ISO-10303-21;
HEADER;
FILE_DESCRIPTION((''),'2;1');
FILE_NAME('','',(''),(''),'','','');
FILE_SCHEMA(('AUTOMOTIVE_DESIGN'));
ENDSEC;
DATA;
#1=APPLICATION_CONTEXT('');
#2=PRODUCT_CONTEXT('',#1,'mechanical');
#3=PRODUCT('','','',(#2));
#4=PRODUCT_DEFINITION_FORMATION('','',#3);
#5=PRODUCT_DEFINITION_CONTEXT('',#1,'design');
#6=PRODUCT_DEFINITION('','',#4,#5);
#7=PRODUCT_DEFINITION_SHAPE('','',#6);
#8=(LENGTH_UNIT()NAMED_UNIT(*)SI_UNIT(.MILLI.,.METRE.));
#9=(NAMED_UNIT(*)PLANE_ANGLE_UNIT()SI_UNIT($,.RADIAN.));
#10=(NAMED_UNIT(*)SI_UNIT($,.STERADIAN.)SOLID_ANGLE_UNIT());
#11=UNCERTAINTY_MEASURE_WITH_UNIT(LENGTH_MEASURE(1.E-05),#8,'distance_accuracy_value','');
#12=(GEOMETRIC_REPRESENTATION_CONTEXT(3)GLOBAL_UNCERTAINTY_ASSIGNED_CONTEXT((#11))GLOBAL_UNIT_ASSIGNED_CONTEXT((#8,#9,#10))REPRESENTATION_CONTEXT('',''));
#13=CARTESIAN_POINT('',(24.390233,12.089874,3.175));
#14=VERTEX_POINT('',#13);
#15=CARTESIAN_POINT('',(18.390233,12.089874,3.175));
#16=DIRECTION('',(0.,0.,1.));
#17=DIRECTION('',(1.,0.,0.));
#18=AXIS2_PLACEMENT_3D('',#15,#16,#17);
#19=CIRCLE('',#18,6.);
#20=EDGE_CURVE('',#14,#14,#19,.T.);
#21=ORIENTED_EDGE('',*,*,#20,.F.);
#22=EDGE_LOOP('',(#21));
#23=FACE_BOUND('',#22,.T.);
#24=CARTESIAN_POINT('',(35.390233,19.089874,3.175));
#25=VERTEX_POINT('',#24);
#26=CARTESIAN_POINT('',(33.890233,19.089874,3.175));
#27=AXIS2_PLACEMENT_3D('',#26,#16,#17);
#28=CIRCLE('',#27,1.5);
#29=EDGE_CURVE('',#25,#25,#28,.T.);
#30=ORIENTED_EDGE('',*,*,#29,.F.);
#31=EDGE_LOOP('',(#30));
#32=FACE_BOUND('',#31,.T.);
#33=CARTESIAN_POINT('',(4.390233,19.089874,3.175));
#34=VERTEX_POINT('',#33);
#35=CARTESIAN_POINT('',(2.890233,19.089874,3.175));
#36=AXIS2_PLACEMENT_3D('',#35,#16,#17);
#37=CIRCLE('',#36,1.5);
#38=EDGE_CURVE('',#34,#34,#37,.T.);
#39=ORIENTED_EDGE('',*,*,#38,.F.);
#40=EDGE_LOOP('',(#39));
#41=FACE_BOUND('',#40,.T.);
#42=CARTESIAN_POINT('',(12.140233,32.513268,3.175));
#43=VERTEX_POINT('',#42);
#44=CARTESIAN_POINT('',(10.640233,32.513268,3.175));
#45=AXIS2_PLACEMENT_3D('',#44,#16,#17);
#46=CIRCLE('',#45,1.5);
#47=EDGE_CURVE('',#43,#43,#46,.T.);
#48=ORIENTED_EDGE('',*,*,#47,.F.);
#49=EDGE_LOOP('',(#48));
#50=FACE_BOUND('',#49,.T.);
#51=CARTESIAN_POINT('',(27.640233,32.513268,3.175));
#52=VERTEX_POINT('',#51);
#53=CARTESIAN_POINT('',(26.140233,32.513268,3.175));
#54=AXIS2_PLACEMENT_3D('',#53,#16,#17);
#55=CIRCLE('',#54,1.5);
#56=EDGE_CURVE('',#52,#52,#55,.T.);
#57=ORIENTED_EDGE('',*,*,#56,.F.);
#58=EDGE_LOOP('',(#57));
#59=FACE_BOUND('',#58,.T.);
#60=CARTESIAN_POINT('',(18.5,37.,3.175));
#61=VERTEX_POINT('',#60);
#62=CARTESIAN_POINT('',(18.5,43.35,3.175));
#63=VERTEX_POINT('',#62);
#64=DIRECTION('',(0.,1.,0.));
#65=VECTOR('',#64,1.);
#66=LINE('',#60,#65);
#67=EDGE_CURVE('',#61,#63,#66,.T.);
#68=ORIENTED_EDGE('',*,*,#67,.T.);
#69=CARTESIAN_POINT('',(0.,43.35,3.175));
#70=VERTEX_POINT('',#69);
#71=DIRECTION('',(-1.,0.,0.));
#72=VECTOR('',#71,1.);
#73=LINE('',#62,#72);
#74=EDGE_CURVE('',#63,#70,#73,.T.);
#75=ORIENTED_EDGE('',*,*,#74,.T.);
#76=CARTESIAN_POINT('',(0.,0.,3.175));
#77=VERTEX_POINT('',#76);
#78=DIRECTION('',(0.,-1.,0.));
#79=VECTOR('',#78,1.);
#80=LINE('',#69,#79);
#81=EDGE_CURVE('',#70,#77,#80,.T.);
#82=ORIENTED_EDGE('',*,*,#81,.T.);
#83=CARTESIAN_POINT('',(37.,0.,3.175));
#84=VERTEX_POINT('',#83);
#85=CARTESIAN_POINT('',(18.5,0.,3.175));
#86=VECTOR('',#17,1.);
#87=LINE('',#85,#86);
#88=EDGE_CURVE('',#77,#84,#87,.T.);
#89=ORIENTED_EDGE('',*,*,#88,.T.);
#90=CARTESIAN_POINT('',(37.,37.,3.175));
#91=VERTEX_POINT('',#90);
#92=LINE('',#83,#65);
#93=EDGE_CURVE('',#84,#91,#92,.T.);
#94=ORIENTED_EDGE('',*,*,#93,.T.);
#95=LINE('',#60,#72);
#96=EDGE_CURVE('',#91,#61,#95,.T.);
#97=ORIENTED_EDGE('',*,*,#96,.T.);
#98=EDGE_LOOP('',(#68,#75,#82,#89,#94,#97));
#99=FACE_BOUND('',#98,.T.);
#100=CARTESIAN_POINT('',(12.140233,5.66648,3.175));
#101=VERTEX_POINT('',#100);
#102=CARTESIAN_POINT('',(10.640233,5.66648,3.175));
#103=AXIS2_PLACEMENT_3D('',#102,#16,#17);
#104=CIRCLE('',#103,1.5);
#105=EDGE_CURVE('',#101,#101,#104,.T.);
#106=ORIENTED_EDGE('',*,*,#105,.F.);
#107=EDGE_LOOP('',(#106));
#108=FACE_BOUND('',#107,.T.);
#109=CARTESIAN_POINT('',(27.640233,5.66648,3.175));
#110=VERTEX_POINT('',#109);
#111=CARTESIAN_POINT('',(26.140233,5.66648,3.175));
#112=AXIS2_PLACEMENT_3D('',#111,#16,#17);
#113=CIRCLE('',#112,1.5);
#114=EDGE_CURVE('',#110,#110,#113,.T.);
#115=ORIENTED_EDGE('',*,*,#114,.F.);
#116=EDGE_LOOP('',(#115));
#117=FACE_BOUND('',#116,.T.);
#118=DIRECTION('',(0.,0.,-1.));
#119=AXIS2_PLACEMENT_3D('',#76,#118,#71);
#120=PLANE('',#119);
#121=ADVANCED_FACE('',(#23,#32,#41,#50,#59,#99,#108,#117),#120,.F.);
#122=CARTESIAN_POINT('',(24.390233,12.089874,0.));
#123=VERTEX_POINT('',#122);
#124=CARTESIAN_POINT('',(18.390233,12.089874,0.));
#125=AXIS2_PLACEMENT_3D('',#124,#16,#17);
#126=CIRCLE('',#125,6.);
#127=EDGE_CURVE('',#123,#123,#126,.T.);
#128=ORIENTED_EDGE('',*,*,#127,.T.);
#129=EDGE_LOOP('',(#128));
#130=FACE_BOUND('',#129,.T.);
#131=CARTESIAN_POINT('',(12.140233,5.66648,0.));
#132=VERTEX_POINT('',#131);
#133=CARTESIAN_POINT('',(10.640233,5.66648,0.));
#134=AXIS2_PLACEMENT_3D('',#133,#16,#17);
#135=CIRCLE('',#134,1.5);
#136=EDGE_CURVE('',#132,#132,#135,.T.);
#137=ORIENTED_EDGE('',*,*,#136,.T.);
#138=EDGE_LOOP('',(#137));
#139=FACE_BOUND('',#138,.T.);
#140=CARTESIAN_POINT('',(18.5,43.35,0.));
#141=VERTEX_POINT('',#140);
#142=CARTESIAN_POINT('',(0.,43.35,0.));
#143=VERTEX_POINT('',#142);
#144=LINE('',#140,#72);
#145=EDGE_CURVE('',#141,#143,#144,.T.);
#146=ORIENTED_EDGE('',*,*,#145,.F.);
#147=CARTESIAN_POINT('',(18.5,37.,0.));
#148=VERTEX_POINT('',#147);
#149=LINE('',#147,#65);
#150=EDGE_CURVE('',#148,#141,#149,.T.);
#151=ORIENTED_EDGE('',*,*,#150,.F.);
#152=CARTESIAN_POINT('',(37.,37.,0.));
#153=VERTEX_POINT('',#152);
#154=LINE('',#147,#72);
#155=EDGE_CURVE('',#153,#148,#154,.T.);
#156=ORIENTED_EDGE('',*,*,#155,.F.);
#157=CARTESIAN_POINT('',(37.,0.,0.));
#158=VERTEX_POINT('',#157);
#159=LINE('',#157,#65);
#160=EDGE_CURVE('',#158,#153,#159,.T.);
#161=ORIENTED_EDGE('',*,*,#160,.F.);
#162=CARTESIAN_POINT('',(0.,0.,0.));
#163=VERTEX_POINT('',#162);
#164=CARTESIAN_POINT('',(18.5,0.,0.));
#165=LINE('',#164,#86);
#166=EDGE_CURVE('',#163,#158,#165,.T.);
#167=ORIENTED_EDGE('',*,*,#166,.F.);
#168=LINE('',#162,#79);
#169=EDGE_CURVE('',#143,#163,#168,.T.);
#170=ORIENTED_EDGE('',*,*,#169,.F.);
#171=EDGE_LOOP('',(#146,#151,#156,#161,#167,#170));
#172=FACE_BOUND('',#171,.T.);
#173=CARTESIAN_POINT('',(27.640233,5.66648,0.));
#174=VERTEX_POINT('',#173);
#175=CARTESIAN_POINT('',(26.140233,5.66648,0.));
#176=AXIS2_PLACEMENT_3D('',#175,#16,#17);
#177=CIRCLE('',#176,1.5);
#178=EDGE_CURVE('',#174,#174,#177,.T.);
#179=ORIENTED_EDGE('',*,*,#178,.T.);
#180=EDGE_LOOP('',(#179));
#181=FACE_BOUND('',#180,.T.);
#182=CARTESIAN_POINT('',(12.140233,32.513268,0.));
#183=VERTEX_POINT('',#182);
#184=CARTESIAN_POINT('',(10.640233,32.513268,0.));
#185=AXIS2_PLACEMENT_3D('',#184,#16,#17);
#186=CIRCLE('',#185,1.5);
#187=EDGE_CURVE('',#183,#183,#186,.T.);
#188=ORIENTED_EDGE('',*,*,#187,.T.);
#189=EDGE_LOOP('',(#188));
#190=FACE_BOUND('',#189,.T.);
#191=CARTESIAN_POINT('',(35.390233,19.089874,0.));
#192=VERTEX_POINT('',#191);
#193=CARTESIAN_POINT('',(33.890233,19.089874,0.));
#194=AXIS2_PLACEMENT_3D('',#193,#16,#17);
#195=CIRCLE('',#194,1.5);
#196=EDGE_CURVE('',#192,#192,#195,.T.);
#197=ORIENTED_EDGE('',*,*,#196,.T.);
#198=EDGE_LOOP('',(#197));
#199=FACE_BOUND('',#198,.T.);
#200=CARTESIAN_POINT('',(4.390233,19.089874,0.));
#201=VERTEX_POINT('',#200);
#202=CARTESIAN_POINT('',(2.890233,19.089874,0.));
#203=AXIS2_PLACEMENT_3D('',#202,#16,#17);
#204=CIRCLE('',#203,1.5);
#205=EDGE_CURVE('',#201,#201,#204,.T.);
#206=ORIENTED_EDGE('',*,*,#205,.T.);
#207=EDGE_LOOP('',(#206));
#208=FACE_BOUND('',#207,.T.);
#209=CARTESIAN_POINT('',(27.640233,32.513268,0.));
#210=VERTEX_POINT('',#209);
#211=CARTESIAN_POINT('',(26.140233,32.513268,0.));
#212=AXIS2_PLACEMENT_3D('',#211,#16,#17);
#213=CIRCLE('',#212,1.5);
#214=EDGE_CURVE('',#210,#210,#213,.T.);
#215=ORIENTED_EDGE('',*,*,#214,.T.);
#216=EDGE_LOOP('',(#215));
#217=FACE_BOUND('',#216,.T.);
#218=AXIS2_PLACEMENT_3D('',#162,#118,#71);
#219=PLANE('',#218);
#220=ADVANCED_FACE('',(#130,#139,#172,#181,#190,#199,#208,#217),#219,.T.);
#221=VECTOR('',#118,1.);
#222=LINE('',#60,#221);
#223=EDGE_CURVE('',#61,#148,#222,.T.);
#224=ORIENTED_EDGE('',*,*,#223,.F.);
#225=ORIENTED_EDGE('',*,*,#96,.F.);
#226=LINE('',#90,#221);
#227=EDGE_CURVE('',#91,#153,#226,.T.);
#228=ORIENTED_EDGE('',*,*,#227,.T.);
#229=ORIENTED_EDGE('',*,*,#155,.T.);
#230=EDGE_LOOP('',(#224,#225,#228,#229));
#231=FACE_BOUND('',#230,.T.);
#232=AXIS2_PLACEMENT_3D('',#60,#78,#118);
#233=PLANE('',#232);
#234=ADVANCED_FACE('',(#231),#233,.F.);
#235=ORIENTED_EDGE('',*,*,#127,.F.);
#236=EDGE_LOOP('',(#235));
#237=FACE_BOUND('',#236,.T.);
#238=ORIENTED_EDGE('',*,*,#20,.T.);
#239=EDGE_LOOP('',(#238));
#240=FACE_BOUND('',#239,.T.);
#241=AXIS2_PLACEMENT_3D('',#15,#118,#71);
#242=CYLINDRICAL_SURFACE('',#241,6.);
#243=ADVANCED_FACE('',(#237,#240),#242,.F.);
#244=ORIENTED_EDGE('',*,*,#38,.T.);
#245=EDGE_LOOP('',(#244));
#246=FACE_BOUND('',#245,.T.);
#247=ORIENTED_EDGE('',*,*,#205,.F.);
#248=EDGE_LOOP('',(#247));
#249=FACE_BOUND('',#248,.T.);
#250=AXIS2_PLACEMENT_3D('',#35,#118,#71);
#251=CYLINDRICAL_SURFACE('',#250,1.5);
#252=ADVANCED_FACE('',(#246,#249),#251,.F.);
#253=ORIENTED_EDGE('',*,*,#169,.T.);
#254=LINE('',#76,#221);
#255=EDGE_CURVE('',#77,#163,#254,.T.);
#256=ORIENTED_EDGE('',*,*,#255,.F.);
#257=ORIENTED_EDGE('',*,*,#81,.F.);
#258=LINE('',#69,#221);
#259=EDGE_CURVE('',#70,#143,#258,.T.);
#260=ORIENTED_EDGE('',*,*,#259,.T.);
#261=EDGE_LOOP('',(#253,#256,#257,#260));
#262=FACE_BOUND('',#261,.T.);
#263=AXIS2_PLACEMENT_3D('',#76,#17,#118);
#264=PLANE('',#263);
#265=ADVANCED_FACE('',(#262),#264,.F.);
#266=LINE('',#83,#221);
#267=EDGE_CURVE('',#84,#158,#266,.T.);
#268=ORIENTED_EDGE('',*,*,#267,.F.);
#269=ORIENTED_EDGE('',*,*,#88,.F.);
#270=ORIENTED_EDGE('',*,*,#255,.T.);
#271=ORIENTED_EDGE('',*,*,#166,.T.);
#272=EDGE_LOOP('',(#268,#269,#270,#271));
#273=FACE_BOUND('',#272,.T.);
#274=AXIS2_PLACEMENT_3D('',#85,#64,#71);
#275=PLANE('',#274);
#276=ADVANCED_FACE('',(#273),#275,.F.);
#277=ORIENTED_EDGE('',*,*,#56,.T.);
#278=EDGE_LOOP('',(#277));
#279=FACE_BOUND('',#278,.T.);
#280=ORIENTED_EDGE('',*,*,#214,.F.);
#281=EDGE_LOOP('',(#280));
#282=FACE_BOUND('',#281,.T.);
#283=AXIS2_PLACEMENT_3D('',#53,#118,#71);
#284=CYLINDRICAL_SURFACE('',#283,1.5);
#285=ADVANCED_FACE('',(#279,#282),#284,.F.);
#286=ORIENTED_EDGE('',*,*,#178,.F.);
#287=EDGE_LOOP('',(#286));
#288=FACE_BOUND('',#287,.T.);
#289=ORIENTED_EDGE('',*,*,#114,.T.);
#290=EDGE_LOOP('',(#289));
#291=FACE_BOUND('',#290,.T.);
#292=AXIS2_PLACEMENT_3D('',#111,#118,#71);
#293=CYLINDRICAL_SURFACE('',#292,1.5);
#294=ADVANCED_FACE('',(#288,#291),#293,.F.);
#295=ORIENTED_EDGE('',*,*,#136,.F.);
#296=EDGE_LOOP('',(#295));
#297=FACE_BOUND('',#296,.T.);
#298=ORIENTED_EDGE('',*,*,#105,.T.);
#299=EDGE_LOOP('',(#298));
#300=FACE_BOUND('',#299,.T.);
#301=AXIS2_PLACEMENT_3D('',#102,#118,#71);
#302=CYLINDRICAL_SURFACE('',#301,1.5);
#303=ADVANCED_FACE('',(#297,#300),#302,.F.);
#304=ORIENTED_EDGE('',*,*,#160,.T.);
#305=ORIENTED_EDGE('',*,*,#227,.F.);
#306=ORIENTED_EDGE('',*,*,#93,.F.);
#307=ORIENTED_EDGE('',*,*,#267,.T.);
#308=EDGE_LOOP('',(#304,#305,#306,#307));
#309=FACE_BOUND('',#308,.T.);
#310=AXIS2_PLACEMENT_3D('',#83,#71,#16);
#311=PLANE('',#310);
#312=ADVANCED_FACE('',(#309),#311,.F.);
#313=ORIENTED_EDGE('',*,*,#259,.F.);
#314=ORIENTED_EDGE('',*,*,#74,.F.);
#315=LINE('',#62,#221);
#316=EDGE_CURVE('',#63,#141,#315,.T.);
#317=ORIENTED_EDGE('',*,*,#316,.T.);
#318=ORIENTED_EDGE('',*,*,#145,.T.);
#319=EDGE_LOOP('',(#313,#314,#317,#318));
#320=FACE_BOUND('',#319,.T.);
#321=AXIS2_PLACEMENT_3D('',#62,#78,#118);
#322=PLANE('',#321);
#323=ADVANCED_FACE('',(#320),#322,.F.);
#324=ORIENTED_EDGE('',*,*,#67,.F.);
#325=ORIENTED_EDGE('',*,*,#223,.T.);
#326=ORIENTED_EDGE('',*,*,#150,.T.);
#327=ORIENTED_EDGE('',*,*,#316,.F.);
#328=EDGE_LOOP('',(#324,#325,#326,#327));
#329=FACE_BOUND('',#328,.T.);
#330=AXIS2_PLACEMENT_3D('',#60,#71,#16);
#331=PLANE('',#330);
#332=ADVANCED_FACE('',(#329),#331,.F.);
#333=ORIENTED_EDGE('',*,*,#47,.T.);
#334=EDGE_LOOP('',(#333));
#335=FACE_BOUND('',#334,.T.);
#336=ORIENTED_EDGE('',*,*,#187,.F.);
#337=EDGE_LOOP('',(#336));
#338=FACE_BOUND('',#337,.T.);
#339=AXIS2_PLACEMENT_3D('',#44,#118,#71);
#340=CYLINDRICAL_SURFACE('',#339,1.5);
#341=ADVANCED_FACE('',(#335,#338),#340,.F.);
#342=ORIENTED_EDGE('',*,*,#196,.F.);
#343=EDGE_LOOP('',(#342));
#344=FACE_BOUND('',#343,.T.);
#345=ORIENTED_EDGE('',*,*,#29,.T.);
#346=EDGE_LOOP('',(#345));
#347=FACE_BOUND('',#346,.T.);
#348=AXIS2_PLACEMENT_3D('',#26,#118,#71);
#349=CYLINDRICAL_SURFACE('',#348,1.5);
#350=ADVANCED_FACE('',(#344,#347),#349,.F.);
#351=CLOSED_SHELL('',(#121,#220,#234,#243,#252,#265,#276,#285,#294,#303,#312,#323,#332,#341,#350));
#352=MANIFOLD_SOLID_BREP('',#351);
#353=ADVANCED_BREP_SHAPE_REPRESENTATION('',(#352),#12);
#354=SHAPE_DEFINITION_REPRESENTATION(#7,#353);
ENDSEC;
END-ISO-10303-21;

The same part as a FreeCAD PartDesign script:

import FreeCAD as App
import Part
import Sketcher
from FreeCAD import Vector


def add_polygon(sketch, points):
    """Adds a closed chain of lines whose ends are joined by coincident constraints."""
    first, n = sketch.GeometryCount, len(points)
    for a, b in zip(points, points[1:] + points[:1]):
        sketch.addGeometry(Part.LineSegment(App.Vector(*a, 0), App.Vector(*b, 0)), False)
    for i in range(n):
        sketch.addConstraint(Sketcher.Constraint("Coincident", first + i, 2, first + (i + 1) % n, 1))

doc = App.newDocument("Part")
body = doc.addObject("PartDesign::Body", "Body")

sketch1 = body.newObject("Sketcher::SketchObject", "Sketch")
sketch1.AttachmentSupport = (doc.getObject("XY_Plane"), [""])
sketch1.MapMode = "FlatFace"
add_polygon(sketch1, [(37, 0), (37, 37), (18.5, 37), (18.5, 43.4), (0, 43.4), (0, 0)])
sketch1.addGeometry(Part.Circle(Vector(10.6, 5.7, 0), Vector(0, 0, 1), 1.5), False)
sketch1.addGeometry(Part.Circle(Vector(26.1, 5.7, 0), Vector(0, 0, 1), 1.5), False)
sketch1.addGeometry(Part.Circle(Vector(18.4, 12.1, 0), Vector(0, 0, 1), 6), False)
sketch1.addGeometry(Part.Circle(Vector(2.9, 19.1, 0), Vector(0, 0, 1), 1.5), False)
sketch1.addGeometry(Part.Circle(Vector(10.6, 32.5, 0), Vector(0, 0, 1), 1.5), False)
sketch1.addGeometry(Part.Circle(Vector(33.9, 19.1, 0), Vector(0, 0, 1), 1.5), False)
sketch1.addGeometry(Part.Circle(Vector(26.1, 32.5, 0), Vector(0, 0, 1), 1.5), False)
sketch1.addConstraint([
    Sketcher.Constraint("Vertical", 0),
    Sketcher.Constraint("Horizontal", 1),
    Sketcher.Constraint("Vertical", 2),
    Sketcher.Constraint("Horizontal", 3),
    Sketcher.Constraint("Vertical", 4),
    Sketcher.Constraint("Horizontal", 5),
    Sketcher.Constraint("Coincident", 4, 2, -1, 1),
    Sketcher.Constraint("Equal", 6, 7),
    Sketcher.Constraint("Equal", 7, 9),
    Sketcher.Constraint("Equal", 9, 10),
    Sketcher.Constraint("Equal", 10, 11),
    Sketcher.Constraint("Equal", 11, 12),
    Sketcher.Constraint("Horizontal", 6, 3, 7, 3),
    Sketcher.Constraint("Horizontal", 9, 3, 11, 3),
    Sketcher.Constraint("Horizontal", 10, 3, 12, 3),
    Sketcher.Constraint("Vertical", 6, 3, 10, 3),
    Sketcher.Constraint("Vertical", 7, 3, 12, 3),
    Sketcher.Constraint("Equal", 1, 3),
    Sketcher.Constraint("Equal", 5, 0),
    Sketcher.Constraint("Diameter", 6, 3.0),
    Sketcher.Constraint("Diameter", 8, 12.0),
    Sketcher.Constraint("DistanceX", 5, 1, 5, 2, 37.0),
    Sketcher.Constraint("DistanceY", 8, 3, 9, 3, 7.0),
    Sketcher.Constraint("DistanceX", 9, 3, 11, 3, 31.0),
    Sketcher.Constraint("DistanceY", 2, 1, 2, 2, 6.35),
    Sketcher.Constraint("DistanceX", 6, 3, 7, 3, 15.5),
    Sketcher.Constraint("DistanceX", 9, 3, 8, 3, 15.5),
    Sketcher.Constraint("DistanceX", 8, 3, 7, 3, 7.75),
    Sketcher.Constraint("DistanceY", -1, 1, 6, 3, 5.66648),
    Sketcher.Constraint("DistanceX", -1, 1, 6, 3, 10.640233),
    Sketcher.Constraint("DistanceY", -1, 1, 8, 3, 12.089874),
    Sketcher.Constraint("DistanceY", -1, 1, 10, 3, 32.513268),
])
pad1 = body.newObject("PartDesign::Pad", "Pad")
pad1.Profile = sketch1
pad1.Length = 3.175

doc.recompute()
